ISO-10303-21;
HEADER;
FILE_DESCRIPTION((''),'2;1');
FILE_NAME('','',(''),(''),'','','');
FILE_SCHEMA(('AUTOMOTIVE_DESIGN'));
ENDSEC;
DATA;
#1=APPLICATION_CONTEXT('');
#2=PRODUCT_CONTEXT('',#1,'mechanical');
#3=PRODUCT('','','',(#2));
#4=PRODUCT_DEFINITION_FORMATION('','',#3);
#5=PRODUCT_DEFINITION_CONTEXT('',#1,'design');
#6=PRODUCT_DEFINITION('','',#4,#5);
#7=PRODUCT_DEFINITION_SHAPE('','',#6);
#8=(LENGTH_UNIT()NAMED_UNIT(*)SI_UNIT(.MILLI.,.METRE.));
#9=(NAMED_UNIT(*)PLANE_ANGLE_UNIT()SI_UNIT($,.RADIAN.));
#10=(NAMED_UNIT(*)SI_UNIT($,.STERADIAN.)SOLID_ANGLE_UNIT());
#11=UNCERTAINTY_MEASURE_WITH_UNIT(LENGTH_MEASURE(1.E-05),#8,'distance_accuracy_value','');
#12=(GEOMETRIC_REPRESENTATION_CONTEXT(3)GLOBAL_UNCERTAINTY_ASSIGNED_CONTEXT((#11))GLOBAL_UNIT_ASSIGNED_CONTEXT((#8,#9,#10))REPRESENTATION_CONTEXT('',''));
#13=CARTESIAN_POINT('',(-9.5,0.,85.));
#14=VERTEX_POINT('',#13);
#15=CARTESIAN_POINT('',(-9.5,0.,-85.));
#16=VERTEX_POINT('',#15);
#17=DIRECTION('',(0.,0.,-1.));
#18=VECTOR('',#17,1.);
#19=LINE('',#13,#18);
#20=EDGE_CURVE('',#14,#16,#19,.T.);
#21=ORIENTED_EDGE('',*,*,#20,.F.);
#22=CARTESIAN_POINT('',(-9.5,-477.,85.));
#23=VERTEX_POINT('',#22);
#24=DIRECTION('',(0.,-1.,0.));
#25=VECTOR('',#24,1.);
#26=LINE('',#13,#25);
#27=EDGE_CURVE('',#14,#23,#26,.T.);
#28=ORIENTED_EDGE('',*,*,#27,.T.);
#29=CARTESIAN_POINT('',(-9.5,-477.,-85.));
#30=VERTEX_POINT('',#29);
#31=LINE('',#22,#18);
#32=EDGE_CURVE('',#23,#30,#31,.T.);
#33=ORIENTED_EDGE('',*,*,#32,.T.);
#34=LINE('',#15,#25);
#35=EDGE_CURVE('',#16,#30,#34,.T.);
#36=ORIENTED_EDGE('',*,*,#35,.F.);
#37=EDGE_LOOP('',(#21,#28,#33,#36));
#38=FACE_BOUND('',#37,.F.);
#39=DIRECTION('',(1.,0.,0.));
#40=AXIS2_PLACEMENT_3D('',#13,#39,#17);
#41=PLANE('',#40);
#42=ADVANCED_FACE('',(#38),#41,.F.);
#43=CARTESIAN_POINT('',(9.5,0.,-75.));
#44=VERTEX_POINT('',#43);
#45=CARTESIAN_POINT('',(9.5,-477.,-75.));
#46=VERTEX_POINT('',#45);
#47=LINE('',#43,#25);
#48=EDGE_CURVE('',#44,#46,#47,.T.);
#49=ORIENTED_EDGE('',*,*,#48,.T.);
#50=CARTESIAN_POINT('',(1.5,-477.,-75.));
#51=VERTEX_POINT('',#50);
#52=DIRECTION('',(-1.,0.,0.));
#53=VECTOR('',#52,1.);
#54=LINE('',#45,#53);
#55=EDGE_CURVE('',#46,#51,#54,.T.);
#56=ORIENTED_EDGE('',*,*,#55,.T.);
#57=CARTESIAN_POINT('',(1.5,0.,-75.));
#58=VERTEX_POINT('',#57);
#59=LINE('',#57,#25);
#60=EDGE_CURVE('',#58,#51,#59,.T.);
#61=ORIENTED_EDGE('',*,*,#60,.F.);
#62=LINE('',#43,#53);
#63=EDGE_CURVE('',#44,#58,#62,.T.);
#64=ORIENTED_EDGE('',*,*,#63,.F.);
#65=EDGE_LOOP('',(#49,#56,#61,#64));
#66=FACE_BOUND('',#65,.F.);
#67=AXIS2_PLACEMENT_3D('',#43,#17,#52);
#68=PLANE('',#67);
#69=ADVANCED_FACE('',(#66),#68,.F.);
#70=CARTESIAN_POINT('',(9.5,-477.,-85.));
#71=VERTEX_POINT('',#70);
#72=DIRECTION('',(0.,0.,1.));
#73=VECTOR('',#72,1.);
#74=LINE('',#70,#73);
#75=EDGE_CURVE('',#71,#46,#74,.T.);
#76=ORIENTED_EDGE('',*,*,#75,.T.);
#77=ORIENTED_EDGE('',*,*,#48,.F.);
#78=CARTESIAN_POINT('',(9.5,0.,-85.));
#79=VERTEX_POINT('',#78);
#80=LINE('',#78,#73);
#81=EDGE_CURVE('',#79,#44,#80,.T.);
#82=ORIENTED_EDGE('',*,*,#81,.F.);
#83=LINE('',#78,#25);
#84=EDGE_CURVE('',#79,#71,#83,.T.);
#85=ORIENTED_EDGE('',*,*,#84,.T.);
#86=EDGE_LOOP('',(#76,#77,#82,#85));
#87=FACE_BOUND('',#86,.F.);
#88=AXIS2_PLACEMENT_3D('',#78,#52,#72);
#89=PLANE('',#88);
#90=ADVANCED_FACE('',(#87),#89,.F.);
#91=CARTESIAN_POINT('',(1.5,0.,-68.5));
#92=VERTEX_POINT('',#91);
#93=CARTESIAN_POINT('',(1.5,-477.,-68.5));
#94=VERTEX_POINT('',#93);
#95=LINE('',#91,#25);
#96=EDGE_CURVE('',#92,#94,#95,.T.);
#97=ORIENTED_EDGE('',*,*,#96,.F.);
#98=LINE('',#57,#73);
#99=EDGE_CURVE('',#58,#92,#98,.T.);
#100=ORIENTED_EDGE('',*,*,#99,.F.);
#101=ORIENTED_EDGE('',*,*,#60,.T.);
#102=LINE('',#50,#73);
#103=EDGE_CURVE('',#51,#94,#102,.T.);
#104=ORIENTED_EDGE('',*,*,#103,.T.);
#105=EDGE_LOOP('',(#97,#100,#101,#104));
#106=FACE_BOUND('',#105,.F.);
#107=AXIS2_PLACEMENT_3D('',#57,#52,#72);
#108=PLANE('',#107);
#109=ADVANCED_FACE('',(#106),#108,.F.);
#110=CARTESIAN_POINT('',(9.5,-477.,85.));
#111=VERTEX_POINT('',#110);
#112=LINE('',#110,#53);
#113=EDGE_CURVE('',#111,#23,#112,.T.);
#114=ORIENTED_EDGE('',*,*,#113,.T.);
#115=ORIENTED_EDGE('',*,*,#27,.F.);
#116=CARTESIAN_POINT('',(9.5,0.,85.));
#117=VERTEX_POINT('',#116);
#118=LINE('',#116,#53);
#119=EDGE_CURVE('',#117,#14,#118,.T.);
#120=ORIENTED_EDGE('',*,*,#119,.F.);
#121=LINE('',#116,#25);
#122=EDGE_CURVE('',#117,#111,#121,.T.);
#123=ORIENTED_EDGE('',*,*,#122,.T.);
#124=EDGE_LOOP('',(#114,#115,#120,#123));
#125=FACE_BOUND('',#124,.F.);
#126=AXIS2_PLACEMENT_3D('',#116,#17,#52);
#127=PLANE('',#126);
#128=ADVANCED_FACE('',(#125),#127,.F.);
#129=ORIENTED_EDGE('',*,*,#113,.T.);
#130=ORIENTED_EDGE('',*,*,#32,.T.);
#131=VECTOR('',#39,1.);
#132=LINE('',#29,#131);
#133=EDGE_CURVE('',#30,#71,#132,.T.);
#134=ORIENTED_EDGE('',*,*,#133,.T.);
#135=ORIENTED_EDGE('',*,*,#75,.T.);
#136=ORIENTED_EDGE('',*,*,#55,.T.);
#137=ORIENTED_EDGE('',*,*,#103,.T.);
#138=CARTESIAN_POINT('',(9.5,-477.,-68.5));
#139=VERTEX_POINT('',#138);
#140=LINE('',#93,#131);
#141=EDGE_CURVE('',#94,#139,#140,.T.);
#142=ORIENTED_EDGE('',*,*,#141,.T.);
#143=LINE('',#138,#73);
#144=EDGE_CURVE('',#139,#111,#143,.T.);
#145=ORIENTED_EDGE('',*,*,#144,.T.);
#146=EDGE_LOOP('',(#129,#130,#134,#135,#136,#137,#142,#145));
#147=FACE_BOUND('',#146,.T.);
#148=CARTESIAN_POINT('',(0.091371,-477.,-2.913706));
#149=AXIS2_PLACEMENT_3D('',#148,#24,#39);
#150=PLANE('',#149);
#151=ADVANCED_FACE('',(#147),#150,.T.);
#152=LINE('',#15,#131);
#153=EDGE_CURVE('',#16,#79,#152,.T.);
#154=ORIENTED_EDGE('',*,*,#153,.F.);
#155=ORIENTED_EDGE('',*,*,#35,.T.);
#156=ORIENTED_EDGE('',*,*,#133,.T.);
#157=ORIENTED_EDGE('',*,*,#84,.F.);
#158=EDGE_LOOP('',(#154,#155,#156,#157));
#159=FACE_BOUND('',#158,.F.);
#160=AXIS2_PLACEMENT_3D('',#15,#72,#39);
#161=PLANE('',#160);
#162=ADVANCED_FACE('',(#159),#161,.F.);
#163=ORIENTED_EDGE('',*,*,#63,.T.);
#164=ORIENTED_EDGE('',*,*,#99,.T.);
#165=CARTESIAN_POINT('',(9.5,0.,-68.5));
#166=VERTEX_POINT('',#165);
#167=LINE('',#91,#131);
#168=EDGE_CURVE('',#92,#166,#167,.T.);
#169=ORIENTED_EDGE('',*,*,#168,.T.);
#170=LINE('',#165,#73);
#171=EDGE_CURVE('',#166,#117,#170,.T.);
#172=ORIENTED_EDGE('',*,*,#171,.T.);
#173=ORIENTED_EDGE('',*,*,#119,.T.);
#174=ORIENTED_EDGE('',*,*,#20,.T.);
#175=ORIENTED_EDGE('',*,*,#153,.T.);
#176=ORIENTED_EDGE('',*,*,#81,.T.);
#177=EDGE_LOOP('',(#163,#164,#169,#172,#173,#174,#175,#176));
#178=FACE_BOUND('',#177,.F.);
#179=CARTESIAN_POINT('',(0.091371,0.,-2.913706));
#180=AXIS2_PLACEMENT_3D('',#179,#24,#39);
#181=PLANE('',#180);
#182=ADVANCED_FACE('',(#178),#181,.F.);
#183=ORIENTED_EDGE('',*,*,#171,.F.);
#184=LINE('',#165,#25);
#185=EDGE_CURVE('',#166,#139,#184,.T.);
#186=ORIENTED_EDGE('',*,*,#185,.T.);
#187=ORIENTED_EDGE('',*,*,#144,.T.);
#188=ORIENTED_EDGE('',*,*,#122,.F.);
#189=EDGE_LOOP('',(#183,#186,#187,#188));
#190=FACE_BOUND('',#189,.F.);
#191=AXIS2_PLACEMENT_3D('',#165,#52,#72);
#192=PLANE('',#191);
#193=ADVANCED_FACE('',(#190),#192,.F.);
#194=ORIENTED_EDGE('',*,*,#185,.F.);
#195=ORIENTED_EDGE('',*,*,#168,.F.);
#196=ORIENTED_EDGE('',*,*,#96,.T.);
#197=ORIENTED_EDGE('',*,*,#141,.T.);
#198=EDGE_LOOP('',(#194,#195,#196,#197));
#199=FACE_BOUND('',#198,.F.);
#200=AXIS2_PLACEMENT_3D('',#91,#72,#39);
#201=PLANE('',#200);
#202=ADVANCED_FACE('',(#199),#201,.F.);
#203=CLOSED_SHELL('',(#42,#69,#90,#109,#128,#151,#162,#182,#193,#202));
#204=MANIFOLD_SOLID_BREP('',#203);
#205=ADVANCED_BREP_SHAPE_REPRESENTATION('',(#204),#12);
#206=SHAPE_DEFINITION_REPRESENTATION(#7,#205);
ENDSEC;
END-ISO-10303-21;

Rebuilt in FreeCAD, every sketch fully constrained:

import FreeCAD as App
import Part
import Sketcher

V = App.Vector
Q = App.Units.Quantity


def add_polygon(sketch, points):
    """Adds a closed chain of lines whose ends are joined by coincident constraints."""
    first, n = sketch.GeometryCount, len(points)
    for a, b in zip(points, points[1:] + points[:1]):
        sketch.addGeometry(Part.LineSegment(App.Vector(*a, 0), App.Vector(*b, 0)), False)
    for i in range(n):
        sketch.addConstraint(Sketcher.Constraint("Coincident", first + i, 2, first + (i + 1) % n, 1))

doc = App.newDocument("Part")
body = doc.addObject("PartDesign::Body", "Body")

# Sketch on XZ plane
sketch1 = body.newObject("Sketcher::SketchObject", "Sketch")
sketch1.AttachmentSupport = (doc.getObject("XZ_Plane"), [""])
sketch1.MapMode = "FlatFace"
add_polygon(sketch1, [(-9.5, -85), (9.5, -85), (9.5, -75), (1.5, -75), (1.5, -68.5), (9.5, -68.5), (9.5, 85), (-9.5, 85)])  # lines 0-7
sketch1.addConstraint(Sketcher.Constraint("Horizontal", 0))
sketch1.addConstraint(Sketcher.Constraint("Vertical", 1))
sketch1.addConstraint(Sketcher.Constraint("Horizontal", 2))
sketch1.addConstraint(Sketcher.Constraint("Vertical", 3))
sketch1.addConstraint(Sketcher.Constraint("Horizontal", 4))
sketch1.addConstraint(Sketcher.Constraint("Vertical", 5))
sketch1.addConstraint(Sketcher.Constraint("Horizontal", 6))
sketch1.addConstraint(Sketcher.Constraint("Vertical", 7))
sketch1.addConstraint(Sketcher.Constraint("Symmetric", 0, 2, 6, 2, -1, 1))
sketch1.addConstraint(Sketcher.Constraint("Vertical", 1, 2, 4, 2))
sketch1.addConstraint(Sketcher.Constraint("DistanceX", 0, 1, 0, 2, Q("19 mm")))
sketch1.addConstraint(Sketcher.Constraint("DistanceX", 2, 2, 2, 1, Q("8 mm")))
sketch1.addConstraint(Sketcher.Constraint("DistanceY", 1, 1, 1, 2, Q("10 mm")))
sketch1.addConstraint(Sketcher.Constraint("DistanceY", 7, 2, 7, 1, Q("170 mm")))
sketch1.addConstraint(Sketcher.Constraint("DistanceY", 3, 1, 3, 2, Q("6.5 mm")))
pad1 = body.newObject("PartDesign::Pad", "Pad")
pad1.Profile = sketch1
pad1.Length = 477

doc.recompute()
